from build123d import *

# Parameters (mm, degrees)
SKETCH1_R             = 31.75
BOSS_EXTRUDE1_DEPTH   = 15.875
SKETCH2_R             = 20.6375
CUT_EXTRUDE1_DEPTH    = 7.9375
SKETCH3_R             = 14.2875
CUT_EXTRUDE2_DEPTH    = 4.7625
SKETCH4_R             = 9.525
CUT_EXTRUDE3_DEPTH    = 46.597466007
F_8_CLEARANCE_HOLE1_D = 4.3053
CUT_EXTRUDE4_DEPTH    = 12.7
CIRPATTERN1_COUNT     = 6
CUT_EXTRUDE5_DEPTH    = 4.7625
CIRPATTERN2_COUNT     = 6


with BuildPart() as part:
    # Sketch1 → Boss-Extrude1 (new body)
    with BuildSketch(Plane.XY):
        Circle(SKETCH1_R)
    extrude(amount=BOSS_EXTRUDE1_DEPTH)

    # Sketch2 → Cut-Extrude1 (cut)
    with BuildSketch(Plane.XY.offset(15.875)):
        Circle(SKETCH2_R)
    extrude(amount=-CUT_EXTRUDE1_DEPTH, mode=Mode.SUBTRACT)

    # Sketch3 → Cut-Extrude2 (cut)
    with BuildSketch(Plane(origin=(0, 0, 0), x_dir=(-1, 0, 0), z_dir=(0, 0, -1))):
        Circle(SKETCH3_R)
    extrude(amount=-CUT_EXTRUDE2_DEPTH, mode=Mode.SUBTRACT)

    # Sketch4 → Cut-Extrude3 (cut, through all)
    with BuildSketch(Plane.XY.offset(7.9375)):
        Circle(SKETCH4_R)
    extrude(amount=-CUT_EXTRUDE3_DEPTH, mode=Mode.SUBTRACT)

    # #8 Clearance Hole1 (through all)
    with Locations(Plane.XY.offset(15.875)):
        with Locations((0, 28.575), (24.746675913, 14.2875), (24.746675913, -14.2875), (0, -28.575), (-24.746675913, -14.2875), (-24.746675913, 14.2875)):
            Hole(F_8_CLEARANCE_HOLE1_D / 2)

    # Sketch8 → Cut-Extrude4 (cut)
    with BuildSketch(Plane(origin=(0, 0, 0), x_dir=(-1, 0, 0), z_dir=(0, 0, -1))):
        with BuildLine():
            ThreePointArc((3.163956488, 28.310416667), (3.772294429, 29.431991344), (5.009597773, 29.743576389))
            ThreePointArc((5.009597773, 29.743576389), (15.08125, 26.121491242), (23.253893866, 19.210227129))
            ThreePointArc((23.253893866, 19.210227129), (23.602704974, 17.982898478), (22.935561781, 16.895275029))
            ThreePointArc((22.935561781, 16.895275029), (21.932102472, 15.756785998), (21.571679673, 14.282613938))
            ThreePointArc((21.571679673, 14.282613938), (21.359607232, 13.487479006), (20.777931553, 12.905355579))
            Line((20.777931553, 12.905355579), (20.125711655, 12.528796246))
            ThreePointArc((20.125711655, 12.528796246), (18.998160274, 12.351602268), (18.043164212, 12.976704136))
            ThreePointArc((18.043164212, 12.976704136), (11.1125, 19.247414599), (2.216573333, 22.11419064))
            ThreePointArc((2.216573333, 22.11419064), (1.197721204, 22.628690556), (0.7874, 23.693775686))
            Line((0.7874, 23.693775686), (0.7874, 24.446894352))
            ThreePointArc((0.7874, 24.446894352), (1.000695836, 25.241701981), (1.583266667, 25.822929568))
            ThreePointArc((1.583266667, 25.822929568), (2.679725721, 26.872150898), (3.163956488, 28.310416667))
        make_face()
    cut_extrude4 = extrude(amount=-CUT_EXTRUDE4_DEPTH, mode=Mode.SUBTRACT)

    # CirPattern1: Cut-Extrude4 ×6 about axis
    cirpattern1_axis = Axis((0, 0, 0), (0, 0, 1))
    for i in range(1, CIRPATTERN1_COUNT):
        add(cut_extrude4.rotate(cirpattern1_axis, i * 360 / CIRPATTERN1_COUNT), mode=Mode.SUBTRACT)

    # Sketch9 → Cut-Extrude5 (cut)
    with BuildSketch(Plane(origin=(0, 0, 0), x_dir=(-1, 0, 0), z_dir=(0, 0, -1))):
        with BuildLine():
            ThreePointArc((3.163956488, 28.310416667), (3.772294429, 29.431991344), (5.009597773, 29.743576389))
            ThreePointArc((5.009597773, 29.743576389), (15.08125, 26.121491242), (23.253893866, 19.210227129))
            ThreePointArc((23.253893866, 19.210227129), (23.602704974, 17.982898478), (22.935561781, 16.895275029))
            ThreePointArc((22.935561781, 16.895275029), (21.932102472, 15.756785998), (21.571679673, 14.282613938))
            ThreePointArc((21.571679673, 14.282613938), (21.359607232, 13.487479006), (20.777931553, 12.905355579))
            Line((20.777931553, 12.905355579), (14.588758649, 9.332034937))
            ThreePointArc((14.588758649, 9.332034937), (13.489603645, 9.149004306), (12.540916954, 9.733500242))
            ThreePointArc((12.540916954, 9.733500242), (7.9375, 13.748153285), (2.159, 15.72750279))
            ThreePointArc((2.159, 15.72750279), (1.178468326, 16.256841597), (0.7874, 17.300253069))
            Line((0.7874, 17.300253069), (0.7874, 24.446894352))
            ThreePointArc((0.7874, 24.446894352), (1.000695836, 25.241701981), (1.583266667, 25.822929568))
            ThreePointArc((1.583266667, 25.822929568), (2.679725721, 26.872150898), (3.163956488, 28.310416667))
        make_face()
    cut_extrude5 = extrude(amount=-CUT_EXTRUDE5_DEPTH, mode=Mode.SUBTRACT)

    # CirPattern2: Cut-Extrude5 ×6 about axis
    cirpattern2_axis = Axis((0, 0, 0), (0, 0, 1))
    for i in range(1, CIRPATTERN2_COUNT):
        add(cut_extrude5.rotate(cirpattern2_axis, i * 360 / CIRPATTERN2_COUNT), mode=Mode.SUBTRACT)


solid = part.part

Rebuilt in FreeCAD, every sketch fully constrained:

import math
import FreeCAD as App
import Part
import Sketcher
from FreeCAD import Vector
Q = App.Units.Quantity

doc = App.newDocument("Part")
body = doc.addObject("PartDesign::Body", "Body")

sketch1 = doc.addObject("Sketcher::SketchObject", "Sketch")
body.addObject(sketch1)
sketch1.AttachmentSupport = (doc.XY_Plane, [""])
sketch1.MapMode = "FlatFace"
sketch1.addGeometry(Part.Circle(Vector(0, 0, 0), Vector(0, 0, 1), 32), False)
sketch1.addConstraint([
    Sketcher.Constraint("Coincident", 0, 3, -1, 1),
    Sketcher.Constraint("Diameter", 0, Q("2.5 in")),
])
pad1 = doc.addObject("PartDesign::Pad", "Pad")
body.addObject(pad1)
pad1.Profile = sketch1
pad1.Length = Q("0.625 in")

sketch2 = doc.addObject("Sketcher::SketchObject", "Sketch001")
body.addObject(sketch2)
sketch2.AttachmentSupport = (doc.XY_Plane, [""])
sketch2.MapMode = "FlatFace"
sketch2.AttachmentOffset = App.Placement(Vector(0, 0, 0.625 * 25.4), App.Rotation())
sketch2.addGeometry(Part.Circle(Vector(0, 0, 0), Vector(0, 0, 1), 21), False)
sketch2.addConstraint([
    Sketcher.Constraint("Coincident", 0, 3, -1, 1),
    Sketcher.Constraint("Diameter", 0, Q("1.625 in")),
])
pocket1 = doc.addObject("PartDesign::Pocket", "Pocket")
body.addObject(pocket1)
pocket1.Profile = sketch2
pocket1.Length = Q("0.3125 in")

sketch3 = doc.addObject("Sketcher::SketchObject", "Sketch002")
body.addObject(sketch3)
sketch3.AttachmentSupport = (doc.XY_Plane, [""])
sketch3.MapMode = "FlatFace"
sketch3.addGeometry(Part.Circle(Vector(0, 0, 0), Vector(0, 0, 1), 14), False)
sketch3.addConstraint([
    Sketcher.Constraint("Coincident", 0, 3, -1, 1),
    Sketcher.Constraint("Diameter", 0, Q("1.125 in")),
])
pocket2 = doc.addObject("PartDesign::Pocket", "Pocket001")
body.addObject(pocket2)
pocket2.Profile = sketch3
pocket2.Length = Q("0.1875 in")
pocket2.Reversed = True

sketch4 = doc.addObject("Sketcher::SketchObject", "Sketch003")
body.addObject(sketch4)
sketch4.AttachmentSupport = (doc.XY_Plane, [""])
sketch4.MapMode = "FlatFace"
sketch4.AttachmentOffset = App.Placement(Vector(0, 0, 0.3125 * 25.4), App.Rotation())
sketch4.addGeometry(Part.Circle(Vector(0, 0, 0), Vector(0, 0, 1), 10), False)
sketch4.addConstraint([
    Sketcher.Constraint("Coincident", 0, 3, -1, 1),
    Sketcher.Constraint("Diameter", 0, Q("0.75 in")),
])
pocket3 = doc.addObject("PartDesign::Pocket", "Pocket002")
body.addObject(pocket3)
pocket3.Profile = sketch4
pocket3.Type = "ThroughAll"

sketch5 = doc.addObject("Sketcher::SketchObject", "Sketch004")
body.addObject(sketch5)
sketch5.AttachmentSupport = (doc.XY_Plane, [""])
sketch5.MapMode = "FlatFace"
sketch5.AttachmentOffset = App.Placement(Vector(0, 0, 0.625 * 25.4), App.Rotation())
sketch5.addGeometry([
    Part.Circle(Vector(0, 28.6, 0), Vector(0, 0, 1), 2.2),
    Part.Circle(Vector(24.7, 14.3, 0), Vector(0, 0, 1), 2.2),
    Part.Circle(Vector(24.7, -14.3, 0), Vector(0, 0, 1), 2.2),
    Part.Circle(Vector(0, -28.6, 0), Vector(0, 0, 1), 2.2),
    Part.Circle(Vector(-24.7, -14.3, 0), Vector(0, 0, 1), 2.2),
    Part.Circle(Vector(-24.7, 14.3, 0), Vector(0, 0, 1), 2.2),
], False)
sketch5.addConstraint([
    Sketcher.Constraint("Equal", 0, 1),
    Sketcher.Constraint("Equal", 1, 2),
    Sketcher.Constraint("Equal", 2, 3),
    Sketcher.Constraint("Equal", 3, 4),
    Sketcher.Constraint("Equal", 4, 5),
    Sketcher.Constraint("Symmetric", 0, 3, 3, 3, -1, 1),
    Sketcher.Constraint("Symmetric", 1, 3, 4, 3, -1, 1),
    Sketcher.Constraint("Symmetric", 2, 3, 5, 3, -1, 1),
    Sketcher.Constraint("Symmetric", 2, 3, 4, 3, -2),
    Sketcher.Constraint("PointOnObject", 0, 3, -2),
    Sketcher.Constraint("Diameter", 0, Q("0.1695 in")),
    Sketcher.Constraint("DistanceY", 3, 3, 0, 3, Q("2.25 in")),
    Sketcher.Constraint("DistanceY", -1, 1, 1, 3, Q("0.5625 in")),
    Sketcher.Constraint("DistanceX", 4, 3, 2, 3, Q("49.493352 mm")),
])
doc.recompute()
hole = doc.addObject("PartDesign::Hole", "Hole")
body.addObject(hole)
hole.Profile = sketch5
hole.ThreadType = "None"
hole.Diameter = Q("0.1695 in")
hole.DepthType = "ThroughAll"

sketch6 = doc.addObject("Sketcher::SketchObject", "Sketch005")
body.addObject(sketch6)
sketch6.AttachmentSupport = (doc.XY_Plane, [""])
sketch6.MapMode = "FlatFace"
sketch6.addGeometry([
    Part.ArcOfCircle(Part.Circle(Vector(-4.7, 28.2, 0), Vector(0, 0, 1), 1.6), math.radians(5), math.radians(100)),
    Part.ArcOfCircle(Part.Circle(Vector(0, 28.6, 0), Vector(0, 0, 1), 3.2), math.radians(-175), math.radians(-120)),
    Part.ArcOfCircle(Part.Circle(Vector(-2.4, 24.4, 0), Vector(0, 0, 1), 1.6), math.radians(0), math.radians(60)),
    Part.LineSegment(Vector(-0.8, 24.4, 0), Vector(-0.8, 23.7, 0)),
    Part.ArcOfCircle(Part.Circle(Vector(-2.4, 23.7, 0), Vector(0, 0, 1), 1.6), math.radians(-84), math.radians(0)),
    Part.ArcOfCircle(Part.Circle(Vector(0, 0, 0), Vector(0, 0, 1), 22.2), math.radians(96), math.radians(144)),
    Part.ArcOfCircle(Part.Circle(Vector(-19.3, 13.9, 0), Vector(0, 0, 1), 1.6), math.radians(-120), math.radians(-36)),
    Part.LineSegment(Vector(-20.1, 12.5, 0), Vector(-20.8, 12.9, 0)),
    Part.ArcOfCircle(Part.Circle(Vector(-20, 14.3, 0), Vector(0, 0, 1), 1.6), math.radians(180), math.radians(240)),
    Part.ArcOfCircle(Part.Circle(Vector(-24.7, 14.3, 0), Vector(0, 0, 1), 3.2), math.radians(0), math.radians(55)),
    Part.ArcOfCircle(Part.Circle(Vector(-22, 18.2, 0), Vector(0, 0, 1), 1.6), math.radians(140), math.radians(235)),
    Part.ArcOfCircle(Part.Circle(Vector(0, 0, 0), Vector(0, 0, 1), 30.2), math.radians(100), math.radians(140)),
], False)
sketch6.addConstraint([
    Sketcher.Constraint("Tangent", 0, 1, 1, 1),
    Sketcher.Constraint("Tangent", 1, 2, 2, 2),
    Sketcher.Constraint("Tangent", 2, 1, 3, 1),
    Sketcher.Constraint("Tangent", 3, 2, 4, 2),
    Sketcher.Constraint("Tangent", 4, 1, 5, 1),
    Sketcher.Constraint("Tangent", 5, 2, 6, 2),
    Sketcher.Constraint("Tangent", 6, 1, 7, 1),
    Sketcher.Constraint("Tangent", 7, 2, 8, 2),
    Sketcher.Constraint("Tangent", 8, 1, 9, 1),
    Sketcher.Constraint("Tangent", 9, 2, 10, 2),
    Sketcher.Constraint("Tangent", 10, 1, 11, 2),
    Sketcher.Constraint("Tangent", 11, 1, 0, 2),
    Sketcher.Constraint("Vertical", 3),
    Sketcher.Constraint("Coincident", 5, 3, -1, 1),
    Sketcher.Constraint("Coincident", 11, 3, -1, 1),
    Sketcher.Constraint("Equal", 0, 2),
    Sketcher.Constraint("Equal", 2, 4),
    Sketcher.Constraint("Equal", 4, 6),
    Sketcher.Constraint("Equal", 6, 8),
    Sketcher.Constraint("Equal", 1, 9),
    Sketcher.Constraint("Equal", 8, 10),
    Sketcher.Constraint("PointOnObject", 1, 3, -2),
    Sketcher.Constraint("Angle", 7, Q("150 deg")),
    Sketcher.Constraint("Radius", 0, Q("0.0625 in")),
    Sketcher.Constraint("Radius", 1, Q("0.125 in")),
    Sketcher.Constraint("Radius", 5, Q("0.875 in")),
    Sketcher.Constraint("Radius", 11, Q("1.1875 in")),
    Sketcher.Constraint("DistanceY", -1, 1, 0, 3, Q("1.109375 in")),
    Sketcher.Constraint("DistanceY", -1, 1, 9, 3, Q("0.5625 in")),
    Sketcher.Constraint("DistanceX", 2, 1, -1, 1, Q("0.031 in")),
    Sketcher.Constraint("Distance", 7, Q("0.753119 mm")),
    Sketcher.Constraint("DistanceX", 6, 3, -1, 1, Q("19.331962 mm")),
])
pocket4 = doc.addObject("PartDesign::Pocket", "Pocket003")
body.addObject(pocket4)
pocket4.Profile = sketch6
pocket4.Length = Q("0.5 in")
pocket4.Reversed = True
doc.recompute()

polarpattern = doc.addObject("PartDesign::PolarPattern", "PolarPattern")
body.addObject(polarpattern)
polarpattern.Originals = [pocket4]
polarpattern.Axis = (doc.Z_Axis, [""])
polarpattern.Angle = 360
polarpattern.Occurrences = 6
body.Tip = polarpattern

sketch7 = doc.addObject("Sketcher::SketchObject", "Sketch006")
body.addObject(sketch7)
sketch7.AttachmentSupport = (doc.XY_Plane, [""])
sketch7.MapMode = "FlatFace"
sketch7.addGeometry([
    Part.ArcOfCircle(Part.Circle(Vector(-4.7, 28.2, 0), Vector(0, 0, 1), 1.6), math.radians(5), math.radians(100)),
    Part.ArcOfCircle(Part.Circle(Vector(0, 28.6, 0), Vector(0, 0, 1), 3.2), math.radians(-175), math.radians(-120)),
    Part.ArcOfCircle(Part.Circle(Vector(-2.4, 24.4, 0), Vector(0, 0, 1), 1.6), math.radians(0), math.radians(60)),
    Part.LineSegment(Vector(-0.8, 24.4, 0), Vector(-0.8, 17.3, 0)),
    Part.ArcOfCircle(Part.Circle(Vector(-2.4, 17.3, 0), Vector(0, 0, 1), 1.6), math.radians(-82), math.radians(0)),
    Part.ArcOfCircle(Part.Circle(Vector(0, 0, 0), Vector(0, 0, 1), 15.9), math.radians(98), math.radians(142)),
    Part.ArcOfCircle(Part.Circle(Vector(-13.8, 10.7, 0), Vector(0, 0, 1), 1.6), math.radians(-120), math.radians(-38)),
    Part.LineSegment(Vector(-14.6, 9.3, 0), Vector(-20.8, 12.9, 0)),
    Part.ArcOfCircle(Part.Circle(Vector(-20, 14.3, 0), Vector(0, 0, 1), 1.6), math.radians(180), math.radians(240)),
    Part.ArcOfCircle(Part.Circle(Vector(-24.7, 14.3, 0), Vector(0, 0, 1), 3.2), math.radians(0), math.radians(55)),
    Part.ArcOfCircle(Part.Circle(Vector(-22, 18.2, 0), Vector(0, 0, 1), 1.6), math.radians(140), math.radians(235)),
    Part.ArcOfCircle(Part.Circle(Vector(0, 0, 0), Vector(0, 0, 1), 30.2), math.radians(100), math.radians(140)),
], False)
sketch7.addConstraint([
    Sketcher.Constraint("Tangent", 0, 1, 1, 1),
    Sketcher.Constraint("Tangent", 1, 2, 2, 2),
    Sketcher.Constraint("Tangent", 2, 1, 3, 1),
    Sketcher.Constraint("Tangent", 3, 2, 4, 2),
    Sketcher.Constraint("Tangent", 4, 1, 5, 1),
    Sketcher.Constraint("Tangent", 5, 2, 6, 2),
    Sketcher.Constraint("Tangent", 6, 1, 7, 1),
    Sketcher.Constraint("Tangent", 7, 2, 8, 2),
    Sketcher.Constraint("Tangent", 8, 1, 9, 1),
    Sketcher.Constraint("Tangent", 9, 2, 10, 2),
    Sketcher.Constraint("Tangent", 10, 1, 11, 2),
    Sketcher.Constraint("Tangent", 11, 1, 0, 2),
    Sketcher.Constraint("Vertical", 3),
    Sketcher.Constraint("Coincident", 5, 3, -1, 1),
    Sketcher.Constraint("Coincident", 11, 3, -1, 1),
    Sketcher.Constraint("Equal", 0, 2),
    Sketcher.Constraint("Equal", 2, 4),
    Sketcher.Constraint("Equal", 4, 6),
    Sketcher.Constraint("Equal", 6, 8),
    Sketcher.Constraint("Equal", 1, 9),
    Sketcher.Constraint("Equal", 8, 10),
    Sketcher.Constraint("PointOnObject", 1, 3, -2),
    Sketcher.Constraint("Angle", 7, Q("150 deg")),
    Sketcher.Constraint("Radius", 0, Q("0.0625 in")),
    Sketcher.Constraint("Radius", 1, Q("0.125 in")),
    Sketcher.Constraint("Radius", 5, Q("0.625 in")),
    Sketcher.Constraint("Radius", 11, Q("1.1875 in")),
    Sketcher.Constraint("DistanceY", -1, 1, 0, 3, Q("1.109375 in")),
    Sketcher.Constraint("DistanceY", -1, 1, 9, 3, Q("0.5625 in")),
    Sketcher.Constraint("DistanceX", 2, 1, -1, 1, Q("0.031 in")),
    Sketcher.Constraint("DistanceY", -1, 1, 5, 2, Q("9.7335 mm")),
    Sketcher.Constraint("Distance", 7, Q("7.146641 mm")),
])
pocket5 = doc.addObject("PartDesign::Pocket", "Pocket004")
body.addObject(pocket5)
pocket5.Profile = sketch7
pocket5.Length = Q("0.1875 in")
pocket5.Reversed = True
doc.recompute()

polarpattern2 = doc.addObject("PartDesign::PolarPattern", "PolarPattern001")
body.addObject(polarpattern2)
polarpattern2.Originals = [pocket5]
polarpattern2.Axis = (doc.Z_Axis, [""])
polarpattern2.Angle = 360
polarpattern2.Occurrences = 6
body.Tip = polarpattern2

doc.recompute()
